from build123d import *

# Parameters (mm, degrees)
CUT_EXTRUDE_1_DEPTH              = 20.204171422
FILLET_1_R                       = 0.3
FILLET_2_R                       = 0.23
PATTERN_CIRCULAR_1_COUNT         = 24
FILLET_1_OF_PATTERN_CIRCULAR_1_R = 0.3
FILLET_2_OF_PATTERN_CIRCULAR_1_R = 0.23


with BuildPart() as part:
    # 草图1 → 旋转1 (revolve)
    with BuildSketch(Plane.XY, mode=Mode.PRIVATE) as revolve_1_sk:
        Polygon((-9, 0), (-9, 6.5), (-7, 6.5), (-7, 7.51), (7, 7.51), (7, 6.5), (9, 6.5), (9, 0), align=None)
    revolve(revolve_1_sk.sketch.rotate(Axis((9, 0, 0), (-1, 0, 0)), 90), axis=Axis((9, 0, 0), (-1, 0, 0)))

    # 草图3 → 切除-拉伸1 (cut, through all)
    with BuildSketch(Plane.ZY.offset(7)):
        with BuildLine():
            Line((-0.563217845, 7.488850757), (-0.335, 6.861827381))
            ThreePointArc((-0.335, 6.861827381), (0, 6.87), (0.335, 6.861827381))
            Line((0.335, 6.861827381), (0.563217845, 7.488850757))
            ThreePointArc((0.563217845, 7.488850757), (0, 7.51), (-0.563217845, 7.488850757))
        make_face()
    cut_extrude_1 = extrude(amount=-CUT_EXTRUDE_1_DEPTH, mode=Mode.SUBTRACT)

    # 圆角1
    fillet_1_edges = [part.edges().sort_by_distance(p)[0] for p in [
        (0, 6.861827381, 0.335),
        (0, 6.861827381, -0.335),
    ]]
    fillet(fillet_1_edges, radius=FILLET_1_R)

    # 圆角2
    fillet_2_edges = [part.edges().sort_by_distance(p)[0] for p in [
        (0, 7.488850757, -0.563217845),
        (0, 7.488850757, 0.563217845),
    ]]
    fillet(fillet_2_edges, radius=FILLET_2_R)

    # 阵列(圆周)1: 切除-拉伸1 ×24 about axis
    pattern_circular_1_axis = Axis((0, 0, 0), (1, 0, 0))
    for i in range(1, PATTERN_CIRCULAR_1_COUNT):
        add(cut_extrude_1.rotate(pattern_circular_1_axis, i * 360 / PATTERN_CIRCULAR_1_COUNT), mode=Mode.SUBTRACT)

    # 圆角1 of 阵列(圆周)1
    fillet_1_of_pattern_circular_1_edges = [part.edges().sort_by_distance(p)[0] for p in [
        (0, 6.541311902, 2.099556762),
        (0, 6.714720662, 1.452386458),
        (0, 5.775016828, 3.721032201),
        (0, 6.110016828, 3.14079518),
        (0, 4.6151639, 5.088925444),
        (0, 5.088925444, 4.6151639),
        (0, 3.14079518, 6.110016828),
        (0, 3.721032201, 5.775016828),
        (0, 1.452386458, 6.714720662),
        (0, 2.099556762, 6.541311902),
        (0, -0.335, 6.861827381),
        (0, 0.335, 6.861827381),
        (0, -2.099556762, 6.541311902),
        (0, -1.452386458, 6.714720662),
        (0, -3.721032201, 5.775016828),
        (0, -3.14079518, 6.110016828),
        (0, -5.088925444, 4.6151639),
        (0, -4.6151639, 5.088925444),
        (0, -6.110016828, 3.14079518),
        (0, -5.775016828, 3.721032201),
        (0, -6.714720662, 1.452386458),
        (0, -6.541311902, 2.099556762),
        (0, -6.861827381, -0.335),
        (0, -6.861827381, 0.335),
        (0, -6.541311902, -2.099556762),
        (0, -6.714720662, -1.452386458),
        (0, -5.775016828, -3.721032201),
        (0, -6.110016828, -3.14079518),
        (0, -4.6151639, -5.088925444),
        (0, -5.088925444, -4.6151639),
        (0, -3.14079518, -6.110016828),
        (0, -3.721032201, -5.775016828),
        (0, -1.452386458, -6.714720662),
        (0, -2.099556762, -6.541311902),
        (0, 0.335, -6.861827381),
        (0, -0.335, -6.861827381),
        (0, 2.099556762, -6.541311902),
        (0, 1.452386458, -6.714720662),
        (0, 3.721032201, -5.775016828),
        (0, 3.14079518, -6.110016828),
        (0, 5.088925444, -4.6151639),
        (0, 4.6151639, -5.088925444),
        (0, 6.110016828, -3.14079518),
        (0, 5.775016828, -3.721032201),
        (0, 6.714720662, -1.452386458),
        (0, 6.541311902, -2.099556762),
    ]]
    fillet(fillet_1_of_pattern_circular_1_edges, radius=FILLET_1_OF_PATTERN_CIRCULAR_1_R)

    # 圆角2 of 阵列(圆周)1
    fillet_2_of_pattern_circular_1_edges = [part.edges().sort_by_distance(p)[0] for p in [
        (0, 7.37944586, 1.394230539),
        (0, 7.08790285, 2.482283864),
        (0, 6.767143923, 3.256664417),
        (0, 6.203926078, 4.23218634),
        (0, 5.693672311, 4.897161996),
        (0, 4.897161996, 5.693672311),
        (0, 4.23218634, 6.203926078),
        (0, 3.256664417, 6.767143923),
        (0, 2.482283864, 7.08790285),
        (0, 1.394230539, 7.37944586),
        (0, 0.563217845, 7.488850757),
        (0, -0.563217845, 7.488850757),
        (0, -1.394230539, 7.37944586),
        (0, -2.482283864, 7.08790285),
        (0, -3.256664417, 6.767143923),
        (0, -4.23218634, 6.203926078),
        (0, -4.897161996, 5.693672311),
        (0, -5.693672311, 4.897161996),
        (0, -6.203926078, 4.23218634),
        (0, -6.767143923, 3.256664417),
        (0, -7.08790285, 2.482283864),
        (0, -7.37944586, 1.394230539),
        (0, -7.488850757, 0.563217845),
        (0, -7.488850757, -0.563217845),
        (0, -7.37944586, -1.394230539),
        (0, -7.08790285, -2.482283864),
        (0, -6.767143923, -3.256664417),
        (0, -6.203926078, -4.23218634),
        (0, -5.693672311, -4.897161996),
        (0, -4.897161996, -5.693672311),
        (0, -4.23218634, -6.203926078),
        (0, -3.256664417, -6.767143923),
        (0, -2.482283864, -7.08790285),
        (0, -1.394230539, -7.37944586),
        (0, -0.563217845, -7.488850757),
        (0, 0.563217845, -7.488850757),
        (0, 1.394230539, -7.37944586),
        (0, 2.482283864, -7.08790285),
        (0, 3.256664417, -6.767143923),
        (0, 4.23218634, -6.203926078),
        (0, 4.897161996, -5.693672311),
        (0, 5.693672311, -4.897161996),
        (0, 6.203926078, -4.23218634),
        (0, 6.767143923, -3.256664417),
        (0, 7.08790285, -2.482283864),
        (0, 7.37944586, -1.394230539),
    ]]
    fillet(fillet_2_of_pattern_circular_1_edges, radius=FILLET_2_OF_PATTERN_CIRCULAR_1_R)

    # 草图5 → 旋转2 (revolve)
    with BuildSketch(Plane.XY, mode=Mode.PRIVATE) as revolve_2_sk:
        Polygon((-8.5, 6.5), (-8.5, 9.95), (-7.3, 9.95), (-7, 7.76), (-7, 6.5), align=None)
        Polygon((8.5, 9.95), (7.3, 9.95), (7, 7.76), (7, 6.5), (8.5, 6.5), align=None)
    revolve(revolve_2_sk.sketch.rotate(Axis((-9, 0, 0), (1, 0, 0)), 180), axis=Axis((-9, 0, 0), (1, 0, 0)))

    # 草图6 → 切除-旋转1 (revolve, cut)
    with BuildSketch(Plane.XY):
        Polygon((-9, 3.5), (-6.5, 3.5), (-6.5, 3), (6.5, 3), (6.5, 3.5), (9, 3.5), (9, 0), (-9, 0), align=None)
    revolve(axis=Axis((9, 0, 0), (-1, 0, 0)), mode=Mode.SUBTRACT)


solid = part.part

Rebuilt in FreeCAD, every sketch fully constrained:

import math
import FreeCAD as App
import Part
import Sketcher
from FreeCAD import Vector
Q = App.Units.Quantity


def edges_at(feature, points):
    """Names of the edges that pass closest to the given points."""
    edges = feature.Shape.Edges
    near = lambda p: min(range(len(edges)), key=lambda i: edges[i].distToShape(Part.Vertex(*p))[0])
    return sorted({f"Edge{near(p) + 1}" for p in points})

doc = App.newDocument("Part")
body = doc.addObject("PartDesign::Body", "Body")

# Sketch on XY plane
sketch1 = body.newObject("Sketcher::SketchObject", "Sketch")
sketch1.AttachmentSupport = (doc.getObject("XY_Plane"), [""])
sketch1.MapMode = "FlatFace"
sketch1.addGeometry(Part.LineSegment(Vector(-9, 6.5, 0), Vector(-9, 0, 0)), False)
sketch1.addGeometry(Part.LineSegment(Vector(-9, 0, 0), Vector(9, 0, 0)), False)
sketch1.addGeometry(Part.LineSegment(Vector(9, 0, 0), Vector(9, 6.5, 0)), False)
sketch1.addGeometry(Part.LineSegment(Vector(9, 6.5, 0), Vector(7, 6.5, 0)), False)
sketch1.addGeometry(Part.LineSegment(Vector(7, 6.5, 0), Vector(7, 7.5, 0)), False)
sketch1.addGeometry(Part.LineSegment(Vector(7, 7.5, 0), Vector(-7, 7.5, 0)), False)
sketch1.addGeometry(Part.LineSegment(Vector(-7, 7.5, 0), Vector(-7, 6.5, 0)), False)
sketch1.addGeometry(Part.LineSegment(Vector(-7, 6.5, 0), Vector(-9, 6.5, 0)), False)
sketch1.addConstraint(Sketcher.Constraint("Coincident", 0, 2, 1, 1))
sketch1.addConstraint(Sketcher.Constraint("Coincident", 1, 2, 2, 1))
sketch1.addConstraint(Sketcher.Constraint("Coincident", 2, 2, 3, 1))
sketch1.addConstraint(Sketcher.Constraint("Coincident", 3, 2, 4, 1))
sketch1.addConstraint(Sketcher.Constraint("Coincident", 4, 2, 5, 1))
sketch1.addConstraint(Sketcher.Constraint("Coincident", 5, 2, 6, 1))
sketch1.addConstraint(Sketcher.Constraint("Coincident", 6, 2, 7, 1))
sketch1.addConstraint(Sketcher.Constraint("Coincident", 7, 2, 0, 1))
sketch1.addConstraint(Sketcher.Constraint("Vertical", 0))
sketch1.addConstraint(Sketcher.Constraint("Horizontal", 1))
sketch1.addConstraint(Sketcher.Constraint("Vertical", 2))
sketch1.addConstraint(Sketcher.Constraint("Horizontal", 3))
sketch1.addConstraint(Sketcher.Constraint("Vertical", 4))
sketch1.addConstraint(Sketcher.Constraint("Horizontal", 5))
sketch1.addConstraint(Sketcher.Constraint("Vertical", 6))
sketch1.addConstraint(Sketcher.Constraint("Horizontal", 7))
sketch1.addConstraint(Sketcher.Constraint("Symmetric", 0, 2, 1, 2, -1, 1))
sketch1.addConstraint(Sketcher.Constraint("Symmetric", 3, 2, 6, 2, -2))
sketch1.addConstraint(Sketcher.Constraint("DistanceX", 1, 1, 1, 2, 18.0))
sketch1.addConstraint(Sketcher.Constraint("DistanceX", 3, 2, 3, 1, 2.0))
sketch1.addConstraint(Sketcher.Constraint("DistanceY", 0, 2, 0, 1, 6.5))
sketch1.addConstraint(Sketcher.Constraint("DistanceY", 4, 1, 4, 2, 1.01))
revolution = body.newObject("PartDesign::Revolution", "Revolution")
revolution.Profile = sketch1
revolution.ReferenceAxis = (sketch1, ["H_Axis"])
revolution.Angle = 360

# Sketch on YZ plane
sketch2 = body.newObject("Sketcher::SketchObject", "Sketch001")
sketch2.AttachmentSupport = (doc.getObject("YZ_Plane"), [""])
sketch2.MapMode = "FlatFace"
sketch2.AttachmentOffset = App.Placement(Vector(0, 0, -7), App.Rotation())
sketch2.addGeometry(Part.LineSegment(Vector(7.5, -0.6, 0), Vector(6.9, -0.3, 0)), False)
sketch2.addGeometry(Part.ArcOfCircle(Part.Circle(Vector(0, 0, 0), Vector(0, 0, 1), 6.9), math.radians(-2.8), math.radians(2.8)), False)
sketch2.addGeometry(Part.LineSegment(Vector(6.9, 0.3, 0), Vector(7.5, 0.6, 0)), False)
sketch2.addGeometry(Part.ArcOfCircle(Part.Circle(Vector(0, 0, 0), Vector(0, 0, 1), 7.5), math.radians(-4.3), math.radians(4.3)), False)
sketch2.addConstraint(Sketcher.Constraint("Coincident", 0, 2, 1, 1))
sketch2.addConstraint(Sketcher.Constraint("Coincident", 1, 2, 2, 1))
sketch2.addConstraint(Sketcher.Constraint("Coincident", 2, 2, 3, 2))
sketch2.addConstraint(Sketcher.Constraint("Coincident", 3, 1, 0, 1))
sketch2.addConstraint(Sketcher.Constraint("Coincident", 1, 3, -1, 1))
sketch2.addConstraint(Sketcher.Constraint("Coincident", 3, 3, -1, 1))
sketch2.addConstraint(Sketcher.Constraint("Vertical", 0, 2, 1, 2))
sketch2.addConstraint(Sketcher.Constraint("Vertical", 2, 2, 3, 1))
sketch2.addConstraint(Sketcher.Constraint("Angle", 0, Q("160 deg")))
sketch2.addConstraint(Sketcher.Constraint("Radius", 1, 6.87))
sketch2.addConstraint(Sketcher.Constraint("Radius", 3, 7.51))
sketch2.addConstraint(Sketcher.Constraint("DistanceY", 0, 2, 1, 2, 0.67))
pocket1 = body.newObject("PartDesign::Pocket", "Pocket")
pocket1.Profile = sketch2
pocket1.Type = "ThroughAll"
pocket1.Reversed = True
doc.recompute()

fillet = body.newObject("PartDesign::Fillet", "Fillet")
fillet.Base = (pocket1, edges_at(pocket1, [(0, 6.862, 0.335), (0, 6.862, -0.335)]))
fillet.Radius = 0.3
doc.recompute()

fillet2 = body.newObject("PartDesign::Fillet", "Fillet001")
fillet2.Base = (fillet, edges_at(fillet, [(0, 7.489, -0.563), (0, 7.489, 0.563)]))
fillet2.Radius = 0.23
doc.recompute()

polarpattern = body.newObject("PartDesign::PolarPattern", "PolarPattern")
polarpattern.Originals = [pocket1]
polarpattern.Axis = (doc.getObject("X_Axis"), [""])
polarpattern.Angle = 360
polarpattern.Occurrences = 24
body.Tip = polarpattern
doc.recompute()

fillet3 = body.newObject("PartDesign::Fillet", "Fillet002")
fillet3.Base = (polarpattern, edges_at(polarpattern, [
    (0, 6.541, 2.1),
    (0, 6.715, 1.452),
    (0, 5.775, 3.721),
    (0, 6.11, 3.141),
    (0, 4.615, 5.089),
    (0, 5.089, 4.615),
    (0, 3.141, 6.11),
    (0, 3.721, 5.775),
    (0, 1.452, 6.715),
    (0, 2.1, 6.541),
    (0, -0.335, 6.862),
    (0, 0.335, 6.862),
    (0, -2.1, 6.541),
    (0, -1.452, 6.715),
    (0, -3.721, 5.775),
    (0, -3.141, 6.11),
    (0, -5.089, 4.615),
    (0, -4.615, 5.089),
    (0, -6.11, 3.141),
    (0, -5.775, 3.721),
    (0, -6.715, 1.452),
    (0, -6.541, 2.1),
    (0, -6.862, -0.335),
    (0, -6.862, 0.335),
    (0, -6.541, -2.1),
    (0, -6.715, -1.452),
    (0, -5.775, -3.721),
    (0, -6.11, -3.141),
    (0, -4.615, -5.089),
    (0, -5.089, -4.615),
    (0, -3.141, -6.11),
    (0, -3.721, -5.775),
    (0, -1.452, -6.715),
    (0, -2.1, -6.541),
    (0, 0.335, -6.862),
    (0, -0.335, -6.862),
    (0, 2.1, -6.541),
    (0, 1.452, -6.715),
    (0, 3.721, -5.775),
    (0, 3.141, -6.11),
    (0, 5.089, -4.615),
    (0, 4.615, -5.089),
    (0, 6.11, -3.141),
    (0, 5.775, -3.721),
    (0, 6.715, -1.452),
    (0, 6.541, -2.1),
]))
fillet3.Radius = 0.3
doc.recompute()

fillet4 = body.newObject("PartDesign::Fillet", "Fillet003")
fillet4.Base = (fillet3, edges_at(fillet3, [
    (0, 7.379, 1.394),
    (0, 7.088, 2.482),
    (0, 6.767, 3.257),
    (0, 6.204, 4.232),
    (0, 5.694, 4.897),
    (0, 4.897, 5.694),
    (0, 4.232, 6.204),
    (0, 3.257, 6.767),
    (0, 2.482, 7.088),
    (0, 1.394, 7.379),
    (0, 0.563, 7.489),
    (0, -0.563, 7.489),
    (0, -1.394, 7.379),
    (0, -2.482, 7.088),
    (0, -3.257, 6.767),
    (0, -4.232, 6.204),
    (0, -4.897, 5.694),
    (0, -5.694, 4.897),
    (0, -6.204, 4.232),
    (0, -6.767, 3.257),
    (0, -7.088, 2.482),
    (0, -7.379, 1.394),
    (0, -7.489, 0.563),
    (0, -7.489, -0.563),
    (0, -7.379, -1.394),
    (0, -7.088, -2.482),
    (0, -6.767, -3.257),
    (0, -6.204, -4.232),
    (0, -5.694, -4.897),
    (0, -4.897, -5.694),
    (0, -4.232, -6.204),
    (0, -3.257, -6.767),
    (0, -2.482, -7.088),
    (0, -1.394, -7.379),
    (0, -0.563, -7.489),
    (0, 0.563, -7.489),
    (0, 1.394, -7.379),
    (0, 2.482, -7.088),
    (0, 3.257, -6.767),
    (0, 4.232, -6.204),
    (0, 4.897, -5.694),
    (0, 5.694, -4.897),
    (0, 6.204, -4.232),
    (0, 6.767, -3.257),
    (0, 7.088, -2.482),
    (0, 7.379, -1.394),
]))
fillet4.Radius = 0.23

# Sketch on XY plane
sketch3 = body.newObject("Sketcher::SketchObject", "Sketch002")
sketch3.AttachmentSupport = (doc.getObject("XY_Plane"), [""])
sketch3.MapMode = "FlatFace"
sketch3.addGeometry(Part.LineSegment(Vector(-8.5, 9.9, 0), Vector(-8.5, 6.5, 0)), False)
sketch3.addGeometry(Part.LineSegment(Vector(-8.5, 6.5, 0), Vector(-7, 6.5, 0)), False)
sketch3.addGeometry(Part.LineSegment(Vector(-7, 6.5, 0), Vector(-7, 7.8, 0)), False)
sketch3.addGeometry(Part.LineSegment(Vector(-7, 7.8, 0), Vector(-7.3, 9.9, 0)), False)
sketch3.addGeometry(Part.LineSegment(Vector(-7.3, 9.9, 0), Vector(-8.5, 9.9, 0)), False)
sketch3.addGeometry(Part.LineSegment(Vector(8.5, 9.9, 0), Vector(7.3, 9.9, 0)), False)
sketch3.addGeometry(Part.LineSegment(Vector(7.3, 9.9, 0), Vector(7, 7.8, 0)), False)
sketch3.addGeometry(Part.LineSegment(Vector(7, 7.8, 0), Vector(7, 6.5, 0)), False)
sketch3.addGeometry(Part.LineSegment(Vector(7, 6.5, 0), Vector(8.5, 6.5, 0)), False)
sketch3.addGeometry(Part.LineSegment(Vector(8.5, 6.5, 0), Vector(8.5, 9.9, 0)), False)
sketch3.addConstraint(Sketcher.Constraint("Coincident", 0, 2, 1, 1))
sketch3.addConstraint(Sketcher.Constraint("Coincident", 1, 2, 2, 1))
sketch3.addConstraint(Sketcher.Constraint("Coincident", 2, 2, 3, 1))
sketch3.addConstraint(Sketcher.Constraint("Coincident", 3, 2, 4, 1))
sketch3.addConstraint(Sketcher.Constraint("Coincident", 4, 2, 0, 1))
sketch3.addConstraint(Sketcher.Constraint("Coincident", 5, 2, 6, 1))
sketch3.addConstraint(Sketcher.Constraint("Coincident", 6, 2, 7, 1))
sketch3.addConstraint(Sketcher.Constraint("Coincident", 7, 2, 8, 1))
sketch3.addConstraint(Sketcher.Constraint("Coincident", 8, 2, 9, 1))
sketch3.addConstraint(Sketcher.Constraint("Coincident", 9, 2, 5, 1))
sketch3.addConstraint(Sketcher.Constraint("Vertical", 0))
sketch3.addConstraint(Sketcher.Constraint("Horizontal", 1))
sketch3.addConstraint(Sketcher.Constraint("Vertical", 2))
sketch3.addConstraint(Sketcher.Constraint("Horizontal", 4))
sketch3.addConstraint(Sketcher.Constraint("Horizontal", 5))
sketch3.addConstraint(Sketcher.Constraint("Vertical", 7))
sketch3.addConstraint(Sketcher.Constraint("Horizontal", 8))
sketch3.addConstraint(Sketcher.Constraint("Vertical", 9))
sketch3.addConstraint(Sketcher.Constraint("Symmetric", 3, 2, 5, 2, -2))
sketch3.addConstraint(Sketcher.Constraint("Symmetric", 2, 2, 6, 2, -2))
sketch3.addConstraint(Sketcher.Constraint("Symmetric", 0, 2, 8, 2, -2))
sketch3.addConstraint(Sketcher.Constraint("DistanceX", 1, 1, 1, 2, 1.5))
sketch3.addConstraint(Sketcher.Constraint("DistanceX", 4, 2, 4, 1, 1.2))
sketch3.addConstraint(Sketcher.Constraint("DistanceX", 1, 2, -1, 1, 7.0))
sketch3.addConstraint(Sketcher.Constraint("DistanceY", 0, 2, 0, 1, 3.45))
sketch3.addConstraint(Sketcher.Constraint("DistanceY", 2, 1, 2, 2, 1.26))
sketch3.addConstraint(Sketcher.Constraint("DistanceY", -1, 1, 0, 2, 6.5))
revolution2 = body.newObject("PartDesign::Revolution", "Revolution001")
revolution2.Profile = sketch3
revolution2.ReferenceAxis = (sketch3, ["H_Axis"])
revolution2.Angle = 360

# Sketch on XY plane
sketch4 = body.newObject("Sketcher::SketchObject", "Sketch003")
sketch4.AttachmentSupport = (doc.getObject("XY_Plane"), [""])
sketch4.MapMode = "FlatFace"
sketch4.addGeometry(Part.LineSegment(Vector(-6.5, 3.5, 0), Vector(-9, 3.5, 0)), False)
sketch4.addGeometry(Part.LineSegment(Vector(-9, 3.5, 0), Vector(-9, 0, 0)), False)
sketch4.addGeometry(Part.LineSegment(Vector(-9, 0, 0), Vector(9, 0, 0)), False)
sketch4.addGeometry(Part.LineSegment(Vector(9, 0, 0), Vector(9, 3.5, 0)), False)
sketch4.addGeometry(Part.LineSegment(Vector(9, 3.5, 0), Vector(6.5, 3.5, 0)), False)
sketch4.addGeometry(Part.LineSegment(Vector(6.5, 3.5, 0), Vector(6.5, 3, 0)), False)
sketch4.addGeometry(Part.LineSegment(Vector(6.5, 3, 0), Vector(-6.5, 3, 0)), False)
sketch4.addGeometry(Part.LineSegment(Vector(-6.5, 3, 0), Vector(-6.5, 3.5, 0)), False)
sketch4.addConstraint(Sketcher.Constraint("Coincident", 0, 2, 1, 1))
sketch4.addConstraint(Sketcher.Constraint("Coincident", 1, 2, 2, 1))
sketch4.addConstraint(Sketcher.Constraint("Coincident", 2, 2, 3, 1))
sketch4.addConstraint(Sketcher.Constraint("Coincident", 3, 2, 4, 1))
sketch4.addConstraint(Sketcher.Constraint("Coincident", 4, 2, 5, 1))
sketch4.addConstraint(Sketcher.Constraint("Coincident", 5, 2, 6, 1))
sketch4.addConstraint(Sketcher.Constraint("Coincident", 6, 2, 7, 1))
sketch4.addConstraint(Sketcher.Constraint("Coincident", 7, 2, 0, 1))
sketch4.addConstraint(Sketcher.Constraint("Horizontal", 0))
sketch4.addConstraint(Sketcher.Constraint("Vertical", 1))
sketch4.addConstraint(Sketcher.Constraint("Horizontal", 2))
sketch4.addConstraint(Sketcher.Constraint("Vertical", 3))
sketch4.addConstraint(Sketcher.Constraint("Horizontal", 4))
sketch4.addConstraint(Sketcher.Constraint("Vertical", 5))
sketch4.addConstraint(Sketcher.Constraint("Horizontal", 6))
sketch4.addConstraint(Sketcher.Constraint("Vertical", 7))
sketch4.addConstraint(Sketcher.Constraint("Symmetric", 1, 2, 2, 2, -1, 1))
sketch4.addConstraint(Sketcher.Constraint("Symmetric", 4, 2, 7, 2, -2))
sketch4.addConstraint(Sketcher.Constraint("DistanceX", 2, 1, 2, 2, 18.0))
sketch4.addConstraint(Sketcher.Constraint("DistanceX", 6, 2, 6, 1, 13.0))
sketch4.addConstraint(Sketcher.Constraint("DistanceY", 1, 2, 1, 1, 3.5))
sketch4.addConstraint(Sketcher.Constraint("DistanceY", 5, 2, 5, 1, 0.5))
groove = body.newObject("PartDesign::Groove", "Groove")
groove.Profile = sketch4
groove.ReferenceAxis = (sketch4, ["H_Axis"])
groove.Angle = 360

doc.recompute()
